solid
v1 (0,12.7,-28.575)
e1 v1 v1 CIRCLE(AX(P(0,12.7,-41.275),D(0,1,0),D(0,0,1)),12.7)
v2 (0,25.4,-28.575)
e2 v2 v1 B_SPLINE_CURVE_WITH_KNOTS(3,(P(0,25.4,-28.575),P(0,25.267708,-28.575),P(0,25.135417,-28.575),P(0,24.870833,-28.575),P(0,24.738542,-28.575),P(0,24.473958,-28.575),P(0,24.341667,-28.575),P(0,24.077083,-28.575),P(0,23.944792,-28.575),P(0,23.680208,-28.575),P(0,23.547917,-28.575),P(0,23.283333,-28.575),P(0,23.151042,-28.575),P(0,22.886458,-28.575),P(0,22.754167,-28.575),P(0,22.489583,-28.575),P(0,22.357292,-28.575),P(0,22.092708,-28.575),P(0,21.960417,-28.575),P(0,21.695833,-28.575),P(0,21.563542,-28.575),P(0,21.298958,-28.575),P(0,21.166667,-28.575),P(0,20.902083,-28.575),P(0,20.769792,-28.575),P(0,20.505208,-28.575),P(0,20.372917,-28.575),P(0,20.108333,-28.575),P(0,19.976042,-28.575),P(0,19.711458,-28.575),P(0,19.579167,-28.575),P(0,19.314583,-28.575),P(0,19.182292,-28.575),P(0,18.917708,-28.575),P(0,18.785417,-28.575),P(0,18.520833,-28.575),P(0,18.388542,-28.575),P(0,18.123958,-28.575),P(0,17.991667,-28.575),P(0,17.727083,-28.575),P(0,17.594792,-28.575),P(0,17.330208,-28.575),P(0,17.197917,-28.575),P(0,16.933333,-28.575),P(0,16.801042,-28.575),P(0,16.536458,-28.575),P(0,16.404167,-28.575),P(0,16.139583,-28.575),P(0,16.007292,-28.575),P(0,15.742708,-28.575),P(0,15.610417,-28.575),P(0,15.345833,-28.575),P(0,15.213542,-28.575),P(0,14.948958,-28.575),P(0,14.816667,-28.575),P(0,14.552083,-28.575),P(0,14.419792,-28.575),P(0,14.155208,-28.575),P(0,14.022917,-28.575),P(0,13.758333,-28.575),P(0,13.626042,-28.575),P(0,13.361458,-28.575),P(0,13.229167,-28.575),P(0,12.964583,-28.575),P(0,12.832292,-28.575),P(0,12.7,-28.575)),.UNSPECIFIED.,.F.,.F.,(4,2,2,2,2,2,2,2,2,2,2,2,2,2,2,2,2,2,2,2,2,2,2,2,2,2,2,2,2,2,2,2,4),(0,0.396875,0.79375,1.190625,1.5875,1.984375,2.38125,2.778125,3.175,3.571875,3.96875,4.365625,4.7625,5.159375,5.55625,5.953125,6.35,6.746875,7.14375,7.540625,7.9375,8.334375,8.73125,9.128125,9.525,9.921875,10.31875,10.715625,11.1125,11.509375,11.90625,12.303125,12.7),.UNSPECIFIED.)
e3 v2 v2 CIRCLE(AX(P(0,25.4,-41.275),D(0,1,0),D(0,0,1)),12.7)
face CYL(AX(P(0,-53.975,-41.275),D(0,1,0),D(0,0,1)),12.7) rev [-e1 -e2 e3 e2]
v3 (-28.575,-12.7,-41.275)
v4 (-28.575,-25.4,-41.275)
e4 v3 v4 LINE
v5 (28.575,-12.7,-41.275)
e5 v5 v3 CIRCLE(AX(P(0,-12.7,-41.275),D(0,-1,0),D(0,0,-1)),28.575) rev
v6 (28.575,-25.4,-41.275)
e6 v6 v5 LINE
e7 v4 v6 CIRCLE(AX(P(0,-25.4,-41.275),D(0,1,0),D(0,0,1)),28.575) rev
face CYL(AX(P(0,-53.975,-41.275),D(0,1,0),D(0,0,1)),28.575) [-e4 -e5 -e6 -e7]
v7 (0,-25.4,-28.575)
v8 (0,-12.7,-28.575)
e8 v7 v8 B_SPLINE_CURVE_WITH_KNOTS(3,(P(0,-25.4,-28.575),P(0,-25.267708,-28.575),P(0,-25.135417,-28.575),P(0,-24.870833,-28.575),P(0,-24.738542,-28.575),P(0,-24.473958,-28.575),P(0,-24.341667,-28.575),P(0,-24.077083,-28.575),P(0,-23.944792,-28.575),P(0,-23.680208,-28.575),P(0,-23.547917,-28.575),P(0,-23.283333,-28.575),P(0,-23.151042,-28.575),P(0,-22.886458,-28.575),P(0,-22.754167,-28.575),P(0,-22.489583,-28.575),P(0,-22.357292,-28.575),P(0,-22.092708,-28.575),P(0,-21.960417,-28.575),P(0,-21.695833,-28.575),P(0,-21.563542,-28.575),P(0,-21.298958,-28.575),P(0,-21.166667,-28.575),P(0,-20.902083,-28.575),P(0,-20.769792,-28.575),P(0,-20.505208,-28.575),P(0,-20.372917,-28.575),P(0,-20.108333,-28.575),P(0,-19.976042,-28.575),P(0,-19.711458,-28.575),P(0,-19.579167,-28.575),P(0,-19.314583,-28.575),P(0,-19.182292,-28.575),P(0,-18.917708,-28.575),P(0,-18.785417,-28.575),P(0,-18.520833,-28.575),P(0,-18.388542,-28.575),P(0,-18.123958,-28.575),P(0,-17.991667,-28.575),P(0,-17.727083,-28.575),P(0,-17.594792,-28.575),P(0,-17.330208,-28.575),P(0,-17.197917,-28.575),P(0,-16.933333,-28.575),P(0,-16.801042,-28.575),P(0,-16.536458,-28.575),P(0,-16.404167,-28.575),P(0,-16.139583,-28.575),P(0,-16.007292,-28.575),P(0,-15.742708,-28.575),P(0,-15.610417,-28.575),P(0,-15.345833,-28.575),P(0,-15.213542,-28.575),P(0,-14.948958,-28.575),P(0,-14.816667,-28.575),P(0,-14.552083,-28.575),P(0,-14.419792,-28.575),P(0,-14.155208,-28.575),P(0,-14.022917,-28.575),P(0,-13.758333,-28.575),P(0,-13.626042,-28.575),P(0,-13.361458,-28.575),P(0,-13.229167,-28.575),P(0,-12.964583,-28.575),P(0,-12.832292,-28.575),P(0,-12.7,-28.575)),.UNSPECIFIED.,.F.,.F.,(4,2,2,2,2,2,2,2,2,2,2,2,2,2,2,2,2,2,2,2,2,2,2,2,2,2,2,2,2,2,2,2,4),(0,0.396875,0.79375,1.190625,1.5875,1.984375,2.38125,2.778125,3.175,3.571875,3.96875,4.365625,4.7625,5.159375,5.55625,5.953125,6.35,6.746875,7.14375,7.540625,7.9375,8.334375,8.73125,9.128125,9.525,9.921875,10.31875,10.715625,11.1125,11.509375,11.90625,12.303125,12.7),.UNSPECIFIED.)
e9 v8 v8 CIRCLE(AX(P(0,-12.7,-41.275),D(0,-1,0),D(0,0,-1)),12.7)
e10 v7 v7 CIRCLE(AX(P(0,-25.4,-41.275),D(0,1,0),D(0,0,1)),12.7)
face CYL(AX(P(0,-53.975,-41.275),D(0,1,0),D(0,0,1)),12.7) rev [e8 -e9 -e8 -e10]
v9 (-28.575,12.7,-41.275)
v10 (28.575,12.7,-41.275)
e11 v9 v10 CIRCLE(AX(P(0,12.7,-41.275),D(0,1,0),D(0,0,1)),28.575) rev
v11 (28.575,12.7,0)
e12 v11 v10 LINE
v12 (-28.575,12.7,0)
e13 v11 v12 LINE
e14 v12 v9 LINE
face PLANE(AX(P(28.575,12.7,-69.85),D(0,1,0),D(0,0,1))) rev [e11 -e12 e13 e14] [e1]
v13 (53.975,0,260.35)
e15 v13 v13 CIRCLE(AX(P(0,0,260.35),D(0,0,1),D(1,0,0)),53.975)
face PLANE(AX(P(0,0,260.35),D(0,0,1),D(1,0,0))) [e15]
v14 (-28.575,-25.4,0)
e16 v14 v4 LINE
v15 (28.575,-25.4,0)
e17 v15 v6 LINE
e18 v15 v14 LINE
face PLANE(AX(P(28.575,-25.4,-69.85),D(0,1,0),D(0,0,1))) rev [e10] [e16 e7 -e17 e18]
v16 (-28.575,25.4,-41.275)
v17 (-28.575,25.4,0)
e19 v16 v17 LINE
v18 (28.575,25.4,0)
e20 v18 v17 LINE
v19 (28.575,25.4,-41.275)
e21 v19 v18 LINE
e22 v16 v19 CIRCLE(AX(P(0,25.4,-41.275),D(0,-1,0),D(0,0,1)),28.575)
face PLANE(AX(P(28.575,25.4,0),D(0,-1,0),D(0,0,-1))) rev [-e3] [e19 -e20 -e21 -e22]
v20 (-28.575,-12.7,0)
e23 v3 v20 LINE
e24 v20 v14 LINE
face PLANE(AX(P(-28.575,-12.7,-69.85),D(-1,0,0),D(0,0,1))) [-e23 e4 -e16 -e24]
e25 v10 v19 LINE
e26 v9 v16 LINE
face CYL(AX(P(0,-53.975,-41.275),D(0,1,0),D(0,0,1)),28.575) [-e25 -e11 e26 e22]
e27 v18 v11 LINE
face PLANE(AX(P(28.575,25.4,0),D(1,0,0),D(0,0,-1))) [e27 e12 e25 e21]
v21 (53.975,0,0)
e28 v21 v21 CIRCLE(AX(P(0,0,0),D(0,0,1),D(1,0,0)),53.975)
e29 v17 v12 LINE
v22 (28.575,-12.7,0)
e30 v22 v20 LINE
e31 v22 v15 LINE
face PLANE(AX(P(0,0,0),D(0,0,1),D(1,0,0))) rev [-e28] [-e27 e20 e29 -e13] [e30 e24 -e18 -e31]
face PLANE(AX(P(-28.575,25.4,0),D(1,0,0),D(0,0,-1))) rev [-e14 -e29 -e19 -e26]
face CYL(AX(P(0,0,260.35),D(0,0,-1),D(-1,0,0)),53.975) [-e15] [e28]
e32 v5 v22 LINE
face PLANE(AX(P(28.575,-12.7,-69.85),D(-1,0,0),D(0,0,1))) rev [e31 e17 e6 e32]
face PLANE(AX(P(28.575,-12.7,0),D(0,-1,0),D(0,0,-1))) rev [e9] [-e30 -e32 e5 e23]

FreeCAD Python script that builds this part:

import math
import FreeCAD as App
import Part
import Sketcher

V = App.Vector
Q = App.Units.Quantity


def add_polygon(sketch, points):
    """Adds a closed chain of lines whose ends are joined by coincident constraints."""
    first, n = sketch.GeometryCount, len(points)
    for a, b in zip(points, points[1:] + points[:1]):
        sketch.addGeometry(Part.LineSegment(App.Vector(*a, 0), App.Vector(*b, 0)), False)
    for i in range(n):
        sketch.addConstraint(Sketcher.Constraint("Coincident", first + i, 2, first + (i + 1) % n, 1))

doc = App.newDocument("Part")
params = doc.addObject("Spreadsheet::Sheet", "Params")
for row, (alias, value) in enumerate([
    ("sketch1_diameter", "4.25 in"),
    ("pad1_length", "10.25 in"),
    ("sketch2_width", "0.5 in"),
    ("sketch2_height", "2.75 in"),
    ("pad2_length", "2.25 in"),
    ("sketch3_diameter", "1 in"),
    ("sketch3_radius", "1.125 in"),
    ("sketch3_height", "1.75 in"),
], start=1):
    params.set(f"A{row}", alias)
    params.set(f"B{row}", "=" + value)
    params.setAlias(f"B{row}", alias)

body = doc.addObject("PartDesign::Body", "Body")

sketch1 = body.newObject("Sketcher::SketchObject", "Sketch")
sketch1.AttachmentSupport = (doc.getObject("XY_Plane"), [""])
sketch1.MapMode = "FlatFace"
sketch1.addGeometry(Part.Circle(V(0, 0, 0), V(0, 0, 1), 54), False)
sketch1.addConstraint([
    Sketcher.Constraint("Coincident", 0, 3, -1, 1),
    Sketcher.Constraint("Diameter", 0, Q("4.25 in")),
])
sketch1.setExpression("Constraints[1]", "Params.sketch1_diameter")
pad1 = body.newObject("PartDesign::Pad", "Pad")
pad1.Profile = sketch1
pad1.setExpression("Length", "Params.pad1_length")

sketch2 = body.newObject("Sketcher::SketchObject", "Sketch001")
sketch2.AttachmentSupport = (doc.getObject("YZ_Plane"), [""])
sketch2.MapMode = "FlatFace"
add_polygon(sketch2, [(25, -70), (25, 0), (13, 0), (13, -70)])
add_polygon(sketch2, [(-13, -70), (-13, 0), (-25, 0), (-25, -70)])
sketch2.addConstraint([
    Sketcher.Constraint("Vertical", 0),
    Sketcher.Constraint("Horizontal", 1),
    Sketcher.Constraint("Vertical", 2),
    Sketcher.Constraint("Horizontal", 3),
    Sketcher.Constraint("Vertical", 4),
    Sketcher.Constraint("Horizontal", 5),
    Sketcher.Constraint("Vertical", 6),
    Sketcher.Constraint("Horizontal", 7),
    Sketcher.Constraint("Symmetric", 1, 2, 4, 2, -1, 1),
    Sketcher.Constraint("Symmetric", 0, 2, 5, 2, -2),
    Sketcher.Constraint("Horizontal", 3, 2, 6, 2),
    Sketcher.Constraint("DistanceX", 1, 2, 1, 1, Q("0.5 in")),
    Sketcher.Constraint("DistanceX", -1, 1, 0, 2, Q("1 in")),
    Sketcher.Constraint("DistanceY", 0, 1, 0, 2, Q("2.75 in")),
])
sketch2.setExpression("Constraints[19]", "Params.sketch2_width")
sketch2.setExpression("Constraints[21]", "Params.sketch2_height")
pad2 = body.newObject("PartDesign::Pad", "Pad001")
pad2.Profile = sketch2
pad2.setExpression("Length", "Params.pad2_length")
pad2.Midplane = True

sketch3 = body.newObject("Sketcher::SketchObject", "Sketch002")
sketch3.AttachmentSupport = (doc.getObject("XZ_Plane"), [""])
sketch3.MapMode = "FlatFace"
sketch3.AttachmentOffset = App.Placement(V(0, 0, -1 * 25.4), App.Rotation())
sketch3.addGeometry([
    Part.Circle(V(0, -41, 0), V(0, 0, 1), 13),
    Part.LineSegment(V(29, -41, 0), V(29, -86, 0)),
    Part.LineSegment(V(29, -86, 0), V(-29, -86, 0)),
    Part.LineSegment(V(-29, -86, 0), V(-29, -41, 0)),
    Part.ArcOfCircle(Part.Circle(V(0, -41, 0), V(0, 0, 1), 29), math.radians(180), math.radians(360)),
], False)
sketch3.addConstraint([
    Sketcher.Constraint("Coincident", 1, 2, 2, 1),
    Sketcher.Constraint("Coincident", 2, 2, 3, 1),
    Sketcher.Constraint("Tangent", 3, 2, 4, 1),
    Sketcher.Constraint("Tangent", 4, 2, 1, 1),
    Sketcher.Constraint("Vertical", 1),
    Sketcher.Constraint("Horizontal", 2),
    Sketcher.Constraint("Vertical", 3),
    Sketcher.Constraint("Coincident", 4, 3, 0, 3),
    Sketcher.Constraint("PointOnObject", 0, 3, -2),
    Sketcher.Constraint("Diameter", 0, Q("1 in")),
    Sketcher.Constraint("Radius", 4, Q("1.125 in")),
    Sketcher.Constraint("DistanceY", 1, 2, 1, 1, Q("1.75 in")),
    Sketcher.Constraint("DistanceY", 0, 3, -1, 1, Q("1.625 in")),
])
sketch3.setExpression("Constraints[9]", "Params.sketch3_diameter")
sketch3.setExpression("Constraints[10]", "Params.sketch3_radius")
sketch3.setExpression("Constraints[11]", "Params.sketch3_height")
pocket1 = body.newObject("PartDesign::Pocket", "Pocket")
pocket1.Profile = sketch3
pocket1.Type = "ThroughAll"
pocket1.Reversed = True

doc.recompute()
